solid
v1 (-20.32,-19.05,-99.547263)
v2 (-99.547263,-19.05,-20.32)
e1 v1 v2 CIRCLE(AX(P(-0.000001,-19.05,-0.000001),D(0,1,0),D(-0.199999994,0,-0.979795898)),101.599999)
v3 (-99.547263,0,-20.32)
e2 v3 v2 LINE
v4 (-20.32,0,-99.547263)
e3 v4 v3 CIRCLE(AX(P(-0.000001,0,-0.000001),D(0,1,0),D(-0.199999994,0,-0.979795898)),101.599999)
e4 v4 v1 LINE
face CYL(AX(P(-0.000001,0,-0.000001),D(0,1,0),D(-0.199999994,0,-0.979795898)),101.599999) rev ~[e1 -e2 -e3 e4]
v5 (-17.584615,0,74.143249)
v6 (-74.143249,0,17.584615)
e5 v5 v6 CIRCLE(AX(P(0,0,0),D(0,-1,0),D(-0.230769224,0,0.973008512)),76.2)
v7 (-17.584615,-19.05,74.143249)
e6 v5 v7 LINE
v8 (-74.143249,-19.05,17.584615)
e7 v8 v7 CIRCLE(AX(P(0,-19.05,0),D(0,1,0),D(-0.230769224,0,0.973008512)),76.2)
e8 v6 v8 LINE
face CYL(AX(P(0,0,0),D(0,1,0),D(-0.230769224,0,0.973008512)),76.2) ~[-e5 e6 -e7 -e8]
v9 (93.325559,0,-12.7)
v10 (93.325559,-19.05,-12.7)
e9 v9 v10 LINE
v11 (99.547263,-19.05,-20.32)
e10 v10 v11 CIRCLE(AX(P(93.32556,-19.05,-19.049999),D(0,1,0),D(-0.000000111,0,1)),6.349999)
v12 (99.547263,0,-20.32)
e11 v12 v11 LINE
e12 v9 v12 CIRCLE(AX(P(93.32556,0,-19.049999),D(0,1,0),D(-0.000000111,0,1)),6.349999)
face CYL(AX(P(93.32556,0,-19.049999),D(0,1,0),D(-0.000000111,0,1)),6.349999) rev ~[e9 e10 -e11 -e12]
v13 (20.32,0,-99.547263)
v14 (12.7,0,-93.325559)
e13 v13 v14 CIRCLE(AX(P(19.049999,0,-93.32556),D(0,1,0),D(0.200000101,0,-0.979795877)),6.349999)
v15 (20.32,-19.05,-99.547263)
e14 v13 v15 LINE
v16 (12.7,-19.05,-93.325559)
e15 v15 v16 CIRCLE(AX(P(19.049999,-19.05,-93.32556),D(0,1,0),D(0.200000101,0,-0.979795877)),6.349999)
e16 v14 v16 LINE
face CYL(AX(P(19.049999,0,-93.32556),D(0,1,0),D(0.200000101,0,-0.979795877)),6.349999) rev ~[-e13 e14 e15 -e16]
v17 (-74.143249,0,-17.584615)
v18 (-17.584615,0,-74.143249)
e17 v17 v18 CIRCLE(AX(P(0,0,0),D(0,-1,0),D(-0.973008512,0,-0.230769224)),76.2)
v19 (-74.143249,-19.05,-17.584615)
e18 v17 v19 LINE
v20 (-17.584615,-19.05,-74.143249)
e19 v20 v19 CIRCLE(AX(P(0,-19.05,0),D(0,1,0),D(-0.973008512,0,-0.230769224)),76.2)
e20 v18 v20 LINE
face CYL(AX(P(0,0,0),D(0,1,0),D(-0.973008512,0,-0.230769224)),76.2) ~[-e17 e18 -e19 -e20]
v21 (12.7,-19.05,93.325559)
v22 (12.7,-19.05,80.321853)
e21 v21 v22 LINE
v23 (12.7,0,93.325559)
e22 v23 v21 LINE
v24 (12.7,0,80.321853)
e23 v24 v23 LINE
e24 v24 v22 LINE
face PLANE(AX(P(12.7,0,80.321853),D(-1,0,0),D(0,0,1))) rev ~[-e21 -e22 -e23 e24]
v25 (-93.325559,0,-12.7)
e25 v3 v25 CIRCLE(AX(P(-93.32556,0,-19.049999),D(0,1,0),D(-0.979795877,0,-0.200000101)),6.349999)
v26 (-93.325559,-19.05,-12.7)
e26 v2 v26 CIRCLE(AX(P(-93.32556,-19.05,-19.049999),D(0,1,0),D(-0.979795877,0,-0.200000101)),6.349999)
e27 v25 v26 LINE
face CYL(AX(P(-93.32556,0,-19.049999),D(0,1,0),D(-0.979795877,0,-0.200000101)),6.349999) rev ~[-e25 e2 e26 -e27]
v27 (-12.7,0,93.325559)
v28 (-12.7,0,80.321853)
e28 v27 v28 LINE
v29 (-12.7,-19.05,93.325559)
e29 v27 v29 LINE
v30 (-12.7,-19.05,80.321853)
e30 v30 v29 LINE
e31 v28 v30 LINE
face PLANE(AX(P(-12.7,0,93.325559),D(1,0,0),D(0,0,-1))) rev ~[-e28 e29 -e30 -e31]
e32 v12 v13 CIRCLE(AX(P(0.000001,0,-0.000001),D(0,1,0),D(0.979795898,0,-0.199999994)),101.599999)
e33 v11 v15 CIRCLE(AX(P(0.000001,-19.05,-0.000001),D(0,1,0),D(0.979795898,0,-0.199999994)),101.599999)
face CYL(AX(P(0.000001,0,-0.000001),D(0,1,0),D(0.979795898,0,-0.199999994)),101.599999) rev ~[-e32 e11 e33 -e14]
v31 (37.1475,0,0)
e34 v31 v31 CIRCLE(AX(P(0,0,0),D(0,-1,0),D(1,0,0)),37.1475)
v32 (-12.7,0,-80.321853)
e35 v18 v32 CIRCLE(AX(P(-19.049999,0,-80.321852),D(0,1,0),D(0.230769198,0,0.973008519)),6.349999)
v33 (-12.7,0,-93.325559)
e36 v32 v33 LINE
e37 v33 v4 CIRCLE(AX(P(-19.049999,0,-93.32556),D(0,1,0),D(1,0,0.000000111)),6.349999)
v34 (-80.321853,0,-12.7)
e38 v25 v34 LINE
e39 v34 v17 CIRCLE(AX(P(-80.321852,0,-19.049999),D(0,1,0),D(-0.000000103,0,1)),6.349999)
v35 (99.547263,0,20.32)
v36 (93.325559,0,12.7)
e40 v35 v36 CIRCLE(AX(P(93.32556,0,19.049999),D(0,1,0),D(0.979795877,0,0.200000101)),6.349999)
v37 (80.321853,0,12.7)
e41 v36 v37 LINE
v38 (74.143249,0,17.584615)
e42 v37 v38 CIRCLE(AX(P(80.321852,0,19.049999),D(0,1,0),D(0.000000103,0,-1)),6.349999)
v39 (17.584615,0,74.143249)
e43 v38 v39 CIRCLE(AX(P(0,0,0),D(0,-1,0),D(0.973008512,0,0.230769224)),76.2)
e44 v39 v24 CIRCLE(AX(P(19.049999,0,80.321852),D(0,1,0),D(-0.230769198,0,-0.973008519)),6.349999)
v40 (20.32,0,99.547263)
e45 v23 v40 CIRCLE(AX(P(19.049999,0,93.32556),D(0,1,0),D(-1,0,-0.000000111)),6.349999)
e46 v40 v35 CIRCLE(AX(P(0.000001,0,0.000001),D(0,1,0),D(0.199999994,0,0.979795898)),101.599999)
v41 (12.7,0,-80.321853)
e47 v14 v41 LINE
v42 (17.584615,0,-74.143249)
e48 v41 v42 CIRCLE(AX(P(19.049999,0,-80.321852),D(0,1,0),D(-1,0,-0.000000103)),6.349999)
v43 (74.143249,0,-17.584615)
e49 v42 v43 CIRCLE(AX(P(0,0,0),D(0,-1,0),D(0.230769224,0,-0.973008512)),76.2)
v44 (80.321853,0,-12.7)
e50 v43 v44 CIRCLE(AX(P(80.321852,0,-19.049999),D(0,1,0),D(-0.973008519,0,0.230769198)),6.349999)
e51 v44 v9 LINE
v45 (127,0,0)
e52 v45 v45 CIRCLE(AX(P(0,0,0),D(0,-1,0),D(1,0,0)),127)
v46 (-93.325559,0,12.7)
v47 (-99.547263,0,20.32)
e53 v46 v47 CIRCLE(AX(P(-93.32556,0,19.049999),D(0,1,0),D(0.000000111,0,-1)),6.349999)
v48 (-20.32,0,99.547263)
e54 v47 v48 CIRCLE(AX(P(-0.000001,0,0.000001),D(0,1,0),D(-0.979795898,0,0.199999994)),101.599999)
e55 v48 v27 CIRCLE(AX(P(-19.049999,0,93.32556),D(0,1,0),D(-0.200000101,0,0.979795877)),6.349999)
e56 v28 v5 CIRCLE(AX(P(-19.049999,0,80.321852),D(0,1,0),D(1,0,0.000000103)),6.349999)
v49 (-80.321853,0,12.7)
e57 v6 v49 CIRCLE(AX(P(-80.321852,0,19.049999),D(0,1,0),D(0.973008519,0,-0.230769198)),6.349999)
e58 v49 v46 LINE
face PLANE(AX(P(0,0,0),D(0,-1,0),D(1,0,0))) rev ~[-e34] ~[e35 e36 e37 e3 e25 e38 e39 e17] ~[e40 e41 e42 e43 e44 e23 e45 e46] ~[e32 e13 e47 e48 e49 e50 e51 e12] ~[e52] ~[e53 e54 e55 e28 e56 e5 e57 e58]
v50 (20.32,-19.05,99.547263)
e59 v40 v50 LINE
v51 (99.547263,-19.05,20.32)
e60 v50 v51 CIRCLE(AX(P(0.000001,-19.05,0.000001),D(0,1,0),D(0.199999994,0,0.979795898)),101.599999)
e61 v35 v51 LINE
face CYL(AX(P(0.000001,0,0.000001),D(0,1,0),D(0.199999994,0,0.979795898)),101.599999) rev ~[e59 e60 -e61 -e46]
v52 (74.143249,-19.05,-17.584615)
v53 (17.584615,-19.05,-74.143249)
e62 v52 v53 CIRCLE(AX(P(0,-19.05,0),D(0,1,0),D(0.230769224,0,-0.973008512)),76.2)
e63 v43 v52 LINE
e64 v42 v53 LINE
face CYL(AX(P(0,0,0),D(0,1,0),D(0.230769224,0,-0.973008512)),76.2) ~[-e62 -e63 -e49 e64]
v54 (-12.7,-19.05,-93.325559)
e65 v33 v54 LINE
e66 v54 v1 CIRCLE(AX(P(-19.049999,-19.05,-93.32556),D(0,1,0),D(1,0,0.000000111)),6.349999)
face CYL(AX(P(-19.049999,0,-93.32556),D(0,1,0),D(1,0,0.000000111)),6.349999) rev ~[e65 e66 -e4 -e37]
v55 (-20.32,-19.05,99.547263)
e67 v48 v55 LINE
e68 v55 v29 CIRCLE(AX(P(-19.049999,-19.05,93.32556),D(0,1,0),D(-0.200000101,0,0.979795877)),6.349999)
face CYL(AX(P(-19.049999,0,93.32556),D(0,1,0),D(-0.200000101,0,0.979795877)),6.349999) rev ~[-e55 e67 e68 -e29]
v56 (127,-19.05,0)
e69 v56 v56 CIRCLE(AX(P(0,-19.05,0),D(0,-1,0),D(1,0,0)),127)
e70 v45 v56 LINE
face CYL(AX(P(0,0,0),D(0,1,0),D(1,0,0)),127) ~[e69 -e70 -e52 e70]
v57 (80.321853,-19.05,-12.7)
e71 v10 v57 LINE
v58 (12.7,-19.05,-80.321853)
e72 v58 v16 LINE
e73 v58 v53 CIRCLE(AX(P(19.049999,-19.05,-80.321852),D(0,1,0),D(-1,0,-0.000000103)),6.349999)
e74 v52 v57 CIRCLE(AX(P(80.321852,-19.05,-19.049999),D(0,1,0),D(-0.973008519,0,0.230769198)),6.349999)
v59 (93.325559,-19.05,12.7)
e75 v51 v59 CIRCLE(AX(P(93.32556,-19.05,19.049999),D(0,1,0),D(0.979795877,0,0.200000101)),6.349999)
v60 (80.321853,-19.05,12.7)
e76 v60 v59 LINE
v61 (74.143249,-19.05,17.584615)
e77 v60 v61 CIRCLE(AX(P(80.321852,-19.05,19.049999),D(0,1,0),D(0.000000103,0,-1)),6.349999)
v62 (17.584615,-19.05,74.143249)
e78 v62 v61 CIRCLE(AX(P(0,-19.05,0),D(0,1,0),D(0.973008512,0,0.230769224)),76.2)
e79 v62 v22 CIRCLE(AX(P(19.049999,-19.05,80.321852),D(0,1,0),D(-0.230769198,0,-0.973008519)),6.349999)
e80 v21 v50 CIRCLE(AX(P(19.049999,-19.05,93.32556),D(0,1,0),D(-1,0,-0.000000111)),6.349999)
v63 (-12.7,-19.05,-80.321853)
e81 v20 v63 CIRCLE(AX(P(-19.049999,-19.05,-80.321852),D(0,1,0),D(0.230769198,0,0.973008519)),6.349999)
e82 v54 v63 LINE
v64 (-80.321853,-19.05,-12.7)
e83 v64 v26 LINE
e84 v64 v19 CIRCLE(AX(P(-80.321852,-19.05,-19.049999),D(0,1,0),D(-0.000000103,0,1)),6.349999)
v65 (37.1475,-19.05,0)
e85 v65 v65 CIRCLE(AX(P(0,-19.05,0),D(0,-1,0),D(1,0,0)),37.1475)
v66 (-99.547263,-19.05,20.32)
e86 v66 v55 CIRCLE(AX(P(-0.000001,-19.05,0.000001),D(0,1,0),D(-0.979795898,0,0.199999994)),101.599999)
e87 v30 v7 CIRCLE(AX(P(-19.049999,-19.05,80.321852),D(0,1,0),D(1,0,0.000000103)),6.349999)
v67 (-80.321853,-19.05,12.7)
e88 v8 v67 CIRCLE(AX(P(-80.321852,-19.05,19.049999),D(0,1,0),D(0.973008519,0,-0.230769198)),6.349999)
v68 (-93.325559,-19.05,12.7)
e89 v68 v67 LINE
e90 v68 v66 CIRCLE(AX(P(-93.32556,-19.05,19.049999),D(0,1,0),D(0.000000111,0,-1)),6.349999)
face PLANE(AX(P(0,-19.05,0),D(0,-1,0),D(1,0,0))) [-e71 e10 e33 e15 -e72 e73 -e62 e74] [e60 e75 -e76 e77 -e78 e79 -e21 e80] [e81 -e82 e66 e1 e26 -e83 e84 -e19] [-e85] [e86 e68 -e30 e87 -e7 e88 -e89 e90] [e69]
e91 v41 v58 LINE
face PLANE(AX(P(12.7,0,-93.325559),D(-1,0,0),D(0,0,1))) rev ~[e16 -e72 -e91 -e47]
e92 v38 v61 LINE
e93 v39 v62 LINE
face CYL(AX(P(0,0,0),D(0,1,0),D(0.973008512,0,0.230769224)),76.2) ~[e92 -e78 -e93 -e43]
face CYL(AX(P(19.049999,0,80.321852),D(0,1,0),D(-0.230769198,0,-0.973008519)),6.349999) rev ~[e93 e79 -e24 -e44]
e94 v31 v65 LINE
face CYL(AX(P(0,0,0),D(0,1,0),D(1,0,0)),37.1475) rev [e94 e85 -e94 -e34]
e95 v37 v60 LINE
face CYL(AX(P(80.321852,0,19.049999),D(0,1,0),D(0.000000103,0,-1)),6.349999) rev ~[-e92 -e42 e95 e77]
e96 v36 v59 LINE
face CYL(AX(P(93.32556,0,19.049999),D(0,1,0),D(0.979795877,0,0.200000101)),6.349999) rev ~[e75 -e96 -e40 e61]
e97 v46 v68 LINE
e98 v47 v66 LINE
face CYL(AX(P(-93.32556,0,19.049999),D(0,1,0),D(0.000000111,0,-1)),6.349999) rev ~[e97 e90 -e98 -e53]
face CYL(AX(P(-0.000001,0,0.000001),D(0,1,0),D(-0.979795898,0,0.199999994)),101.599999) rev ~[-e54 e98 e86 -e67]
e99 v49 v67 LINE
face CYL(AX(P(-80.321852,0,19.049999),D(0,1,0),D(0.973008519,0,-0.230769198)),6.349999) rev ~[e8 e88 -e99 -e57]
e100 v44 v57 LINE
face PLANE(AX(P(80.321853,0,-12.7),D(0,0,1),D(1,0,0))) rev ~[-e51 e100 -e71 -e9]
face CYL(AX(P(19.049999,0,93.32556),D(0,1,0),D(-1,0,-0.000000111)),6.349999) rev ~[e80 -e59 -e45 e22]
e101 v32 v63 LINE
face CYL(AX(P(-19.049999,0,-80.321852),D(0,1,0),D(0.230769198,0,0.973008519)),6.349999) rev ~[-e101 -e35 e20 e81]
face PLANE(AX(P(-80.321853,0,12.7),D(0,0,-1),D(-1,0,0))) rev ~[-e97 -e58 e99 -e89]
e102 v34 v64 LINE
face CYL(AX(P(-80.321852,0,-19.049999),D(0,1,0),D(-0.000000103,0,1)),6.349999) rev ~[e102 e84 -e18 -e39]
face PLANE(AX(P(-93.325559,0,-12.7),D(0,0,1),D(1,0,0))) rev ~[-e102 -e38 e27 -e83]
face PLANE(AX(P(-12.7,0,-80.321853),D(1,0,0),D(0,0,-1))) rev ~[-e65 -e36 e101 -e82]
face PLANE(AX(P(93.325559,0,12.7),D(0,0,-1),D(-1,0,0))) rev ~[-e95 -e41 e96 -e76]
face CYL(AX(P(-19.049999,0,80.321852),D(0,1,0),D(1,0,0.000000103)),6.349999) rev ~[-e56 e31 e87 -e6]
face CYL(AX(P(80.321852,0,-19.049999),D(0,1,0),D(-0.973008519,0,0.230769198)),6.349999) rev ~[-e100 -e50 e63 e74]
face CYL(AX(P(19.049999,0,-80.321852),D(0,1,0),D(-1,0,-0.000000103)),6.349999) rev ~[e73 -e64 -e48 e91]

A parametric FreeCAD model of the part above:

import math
import FreeCAD as App
import Part
import Sketcher

V = App.Vector
Q = App.Units.Quantity

doc = App.newDocument("Part")
params = doc.addObject("Spreadsheet::Sheet", "Params")
for row, (alias, value) in enumerate([
    ("sketch1_diameter", "10 in"),
    ("sketch1_diameter2", "2.925 in"),
    ("pad1_length", "0.75 in"),
    ("sketch2_radius", "4 in"),
    ("sketch2_radius2", "3 in"),
    ("sketch2_radius3", "0.25 in"),
    ("pocket1_length", "1 in"),
], start=1):
    params.set(f"A{row}", alias)
    params.set(f"B{row}", "=" + value)
    params.setAlias(f"B{row}", alias)

body = doc.addObject("PartDesign::Body", "Body")

sketch1 = body.newObject("Sketcher::SketchObject", "Sketch")
sketch1.AttachmentSupport = (doc.getObject("XZ_Plane"), [""])
sketch1.MapMode = "FlatFace"
sketch1.addGeometry([
    Part.Circle(V(0, 0, 0), V(0, 0, 1), 127),
    Part.Circle(V(0, 0, 0), V(0, 0, 1), 37.1475),
], False)
sketch1.addConstraint([
    Sketcher.Constraint("Coincident", 0, 3, -1, 1),
    Sketcher.Constraint("Coincident", 1, 3, -1, 1),
    Sketcher.Constraint("Diameter", 0, Q("10 in")),
    Sketcher.Constraint("Diameter", 1, Q("2.925 in")),
])
sketch1.setExpression("Constraints[2]", "Params.sketch1_diameter")
sketch1.setExpression("Constraints[3]", "Params.sketch1_diameter2")
pad1 = body.newObject("PartDesign::Pad", "Pad")
pad1.Profile = sketch1
pad1.setExpression("Length", "Params.pad1_length")

sketch2 = body.newObject("Sketcher::SketchObject", "Sketch001")
sketch2.AttachmentSupport = (doc.getObject("XZ_Plane"), [""])
sketch2.MapMode = "FlatFace"
sketch2.addGeometry([
    Part.ArcOfCircle(Part.Circle(V(19.049999, 80.321852, 0), V(0, 0, 1), 6.349999), math.radians(179.999994), math.radians(256.657638)),
    Part.LineSegment(V(12.7, 80.321853, 0), V(12.7, 93.325559, 0)),
    Part.ArcOfCircle(Part.Circle(V(19.049999, 93.32556, 0), V(0, 0, 1), 6.349999), math.radians(78.463035), math.radians(180.000006)),
    Part.ArcOfCircle(Part.Circle(V(0.000001, 0.000001, 0), V(0, 0, 1), 101.599999), math.radians(11.536959), math.radians(78.463041)),
    Part.ArcOfCircle(Part.Circle(V(93.32556, 19.049999, 0), V(0, 0, 1), 6.349999), math.radians(-90.000006), math.radians(11.536965)),
    Part.LineSegment(V(93.325559, 12.7, 0), V(80.321853, 12.7, 0)),
    Part.ArcOfCircle(Part.Circle(V(80.321852, 19.049999, 0), V(0, 0, 1), 6.349999), math.radians(-166.657638), math.radians(-89.999994)),
    Part.ArcOfCircle(Part.Circle(V(0, 0, 0), V(0, 0, 1), 76.2), math.radians(13.342363), math.radians(76.657637)),
    Part.ArcOfCircle(Part.Circle(V(0, 0, 0), V(0, 0, 1), 76.2), math.radians(103.342363), math.radians(166.657637)),
    Part.ArcOfCircle(Part.Circle(V(-80.321852, 19.049999, 0), V(0, 0, 1), 6.349999), math.radians(-90.000006), math.radians(-13.342362)),
    Part.LineSegment(V(-80.321853, 12.7, 0), V(-93.325559, 12.7, 0)),
    Part.ArcOfCircle(Part.Circle(V(-93.32556, 19.049999, 0), V(0, 0, 1), 6.349999), math.radians(168.463035), math.radians(270.000006)),
    Part.ArcOfCircle(Part.Circle(V(-0.000001, 0.000001, 0), V(0, 0, 1), 101.599999), math.radians(101.536959), math.radians(168.463041)),
    Part.ArcOfCircle(Part.Circle(V(-19.049999, 93.32556, 0), V(0, 0, 1), 6.349999), math.radians(-0.000006), math.radians(101.536965)),
    Part.LineSegment(V(-12.7, 93.325559, 0), V(-12.7, 80.321853, 0)),
    Part.ArcOfCircle(Part.Circle(V(-19.049999, 80.321852, 0), V(0, 0, 1), 6.349999), math.radians(-76.657638), math.radians(0.000006)),
    Part.LineSegment(V(-93.325559, -12.7, 0), V(-80.321853, -12.7, 0)),
    Part.ArcOfCircle(Part.Circle(V(-80.321852, -19.049999, 0), V(0, 0, 1), 6.349999), math.radians(13.342362), math.radians(90.000006)),
    Part.ArcOfCircle(Part.Circle(V(0, 0, 0), V(0, 0, 1), 76.2), math.radians(-166.657637), math.radians(-103.342363)),
    Part.ArcOfCircle(Part.Circle(V(-19.049999, -80.321852, 0), V(0, 0, 1), 6.349999), math.radians(-0.000006), math.radians(76.657638)),
    Part.LineSegment(V(-12.7, -80.321853, 0), V(-12.7, -93.325559, 0)),
    Part.ArcOfCircle(Part.Circle(V(-19.049999, -93.32556, 0), V(0, 0, 1), 6.349999), math.radians(-101.536965), math.radians(0.000006)),
    Part.ArcOfCircle(Part.Circle(V(-0.000001, -0.000001, 0), V(0, 0, 1), 101.599999), math.radians(-168.463041), math.radians(-101.536959)),
    Part.ArcOfCircle(Part.Circle(V(-93.32556, -19.049999, 0), V(0, 0, 1), 6.349999), math.radians(89.999994), math.radians(191.536965)),
    Part.ArcOfCircle(Part.Circle(V(80.321852, -19.049999, 0), V(0, 0, 1), 6.349999), math.radians(89.999994), math.radians(166.657638)),
    Part.LineSegment(V(80.321853, -12.7, 0), V(93.325559, -12.7, 0)),
    Part.ArcOfCircle(Part.Circle(V(93.32556, -19.049999, 0), V(0, 0, 1), 6.349999), math.radians(-11.536965), math.radians(90.000006)),
    Part.ArcOfCircle(Part.Circle(V(0.000001, -0.000001, 0), V(0, 0, 1), 101.599999), math.radians(-78.463041), math.radians(-11.536959)),
    Part.ArcOfCircle(Part.Circle(V(19.049999, -93.32556, 0), V(0, 0, 1), 6.349999), math.radians(179.999994), math.radians(281.536965)),
    Part.LineSegment(V(12.7, -93.325559, 0), V(12.7, -80.321853, 0)),
    Part.ArcOfCircle(Part.Circle(V(19.049999, -80.321852, 0), V(0, 0, 1), 6.349999), math.radians(103.342362), math.radians(180.000006)),
    Part.ArcOfCircle(Part.Circle(V(0, 0, 0), V(0, 0, 1), 76.2), math.radians(-76.657637), math.radians(-13.342363)),
], False)
sketch2.addConstraint([
    Sketcher.Constraint("Tangent", 0, 1, 1, 1),
    Sketcher.Constraint("Tangent", 1, 2, 2, 2),
    Sketcher.Constraint("Tangent", 2, 1, 3, 2),
    Sketcher.Constraint("Tangent", 3, 1, 4, 2),
    Sketcher.Constraint("Tangent", 4, 1, 5, 1),
    Sketcher.Constraint("Tangent", 5, 2, 6, 2),
    Sketcher.Constraint("Tangent", 6, 1, 7, 1),
    Sketcher.Constraint("Tangent", 7, 2, 0, 2),
    Sketcher.Constraint("Tangent", 8, 2, 9, 2),
    Sketcher.Constraint("Tangent", 9, 1, 10, 1),
    Sketcher.Constraint("Tangent", 10, 2, 11, 2),
    Sketcher.Constraint("Tangent", 11, 1, 12, 2),
    Sketcher.Constraint("Tangent", 12, 1, 13, 2),
    Sketcher.Constraint("Tangent", 13, 1, 14, 1),
    Sketcher.Constraint("Tangent", 14, 2, 15, 2),
    Sketcher.Constraint("Tangent", 15, 1, 8, 1),
    Sketcher.Constraint("Tangent", 16, 2, 17, 2),
    Sketcher.Constraint("Tangent", 17, 1, 18, 1),
    Sketcher.Constraint("Tangent", 18, 2, 19, 2),
    Sketcher.Constraint("Tangent", 19, 1, 20, 1),
    Sketcher.Constraint("Tangent", 20, 2, 21, 2),
    Sketcher.Constraint("Tangent", 21, 1, 22, 2),
    Sketcher.Constraint("Tangent", 22, 1, 23, 2),
    Sketcher.Constraint("Tangent", 23, 1, 16, 1),
    Sketcher.Constraint("Tangent", 24, 1, 25, 1),
    Sketcher.Constraint("Tangent", 25, 2, 26, 2),
    Sketcher.Constraint("Tangent", 26, 1, 27, 2),
    Sketcher.Constraint("Tangent", 27, 1, 28, 2),
    Sketcher.Constraint("Tangent", 28, 1, 29, 1),
    Sketcher.Constraint("Tangent", 29, 2, 30, 2),
    Sketcher.Constraint("Tangent", 30, 1, 31, 1),
    Sketcher.Constraint("Tangent", 31, 2, 24, 2),
    Sketcher.Constraint("Vertical", 1),
    Sketcher.Constraint("Horizontal", 5),
    Sketcher.Constraint("Horizontal", 10),
    Sketcher.Constraint("Vertical", 14),
    Sketcher.Constraint("Horizontal", 16),
    Sketcher.Constraint("Vertical", 20),
    Sketcher.Constraint("Horizontal", 25),
    Sketcher.Constraint("Vertical", 29),
    Sketcher.Constraint("Coincident", 3, 3, -1, 1),
    Sketcher.Constraint("Coincident", 7, 3, -1, 1),
    Sketcher.Constraint("Coincident", 8, 3, -1, 1),
    Sketcher.Constraint("Coincident", 12, 3, -1, 1),
    Sketcher.Constraint("Coincident", 18, 3, -1, 1),
    Sketcher.Constraint("Coincident", 22, 3, -1, 1),
    Sketcher.Constraint("Coincident", 27, 3, -1, 1),
    Sketcher.Constraint("Coincident", 31, 3, -1, 1),
    Sketcher.Constraint("Equal", 0, 2),
    Sketcher.Constraint("Equal", 2, 4),
    Sketcher.Constraint("Equal", 4, 6),
    Sketcher.Constraint("Equal", 7, 8),
    Sketcher.Constraint("Equal", 6, 9),
    Sketcher.Constraint("Equal", 9, 11),
    Sketcher.Constraint("Equal", 3, 12),
    Sketcher.Constraint("Equal", 11, 13),
    Sketcher.Constraint("Equal", 13, 15),
    Sketcher.Constraint("Equal", 15, 17),
    Sketcher.Constraint("Equal", 8, 18),
    Sketcher.Constraint("Equal", 17, 19),
    Sketcher.Constraint("Equal", 19, 21),
    Sketcher.Constraint("Equal", 12, 22),
    Sketcher.Constraint("Equal", 21, 23),
    Sketcher.Constraint("Equal", 23, 24),
    Sketcher.Constraint("Equal", 24, 26),
    Sketcher.Constraint("Equal", 22, 27),
    Sketcher.Constraint("Equal", 26, 28),
    Sketcher.Constraint("Equal", 28, 30),
    Sketcher.Constraint("Equal", 18, 31),
    Sketcher.Constraint("Horizontal", 6, 3, 9, 3),
    Sketcher.Constraint("Horizontal", 2, 3, 13, 3),
    Sketcher.Constraint("Horizontal", 23, 3, 24, 3),
    Sketcher.Constraint("Horizontal", 21, 3, 28, 3),
    Sketcher.Constraint("Vertical", 9, 3, 17, 3),
    Sketcher.Constraint("Vertical", 15, 3, 19, 3),
    Sketcher.Constraint("Equal", 25, 1),
    Sketcher.Constraint("Radius", 3, Q("4 in")),
    Sketcher.Constraint("Radius", 7, Q("3 in")),
    Sketcher.Constraint("Radius", 0, Q("0.25 in")),
    Sketcher.Constraint("DistanceX", 13, 1, 1, 2, Q("1 in")),
])
sketch2.setExpression("Constraints[76]", "Params.sketch2_radius")
sketch2.setExpression("Constraints[77]", "Params.sketch2_radius2")
sketch2.setExpression("Constraints[78]", "Params.sketch2_radius3")
pocket1 = body.newObject("PartDesign::Pocket", "Pocket")
pocket1.Profile = sketch2
pocket1.setExpression("Length", "Params.pocket1_length")
pocket1.Reversed = True

doc.recompute()
